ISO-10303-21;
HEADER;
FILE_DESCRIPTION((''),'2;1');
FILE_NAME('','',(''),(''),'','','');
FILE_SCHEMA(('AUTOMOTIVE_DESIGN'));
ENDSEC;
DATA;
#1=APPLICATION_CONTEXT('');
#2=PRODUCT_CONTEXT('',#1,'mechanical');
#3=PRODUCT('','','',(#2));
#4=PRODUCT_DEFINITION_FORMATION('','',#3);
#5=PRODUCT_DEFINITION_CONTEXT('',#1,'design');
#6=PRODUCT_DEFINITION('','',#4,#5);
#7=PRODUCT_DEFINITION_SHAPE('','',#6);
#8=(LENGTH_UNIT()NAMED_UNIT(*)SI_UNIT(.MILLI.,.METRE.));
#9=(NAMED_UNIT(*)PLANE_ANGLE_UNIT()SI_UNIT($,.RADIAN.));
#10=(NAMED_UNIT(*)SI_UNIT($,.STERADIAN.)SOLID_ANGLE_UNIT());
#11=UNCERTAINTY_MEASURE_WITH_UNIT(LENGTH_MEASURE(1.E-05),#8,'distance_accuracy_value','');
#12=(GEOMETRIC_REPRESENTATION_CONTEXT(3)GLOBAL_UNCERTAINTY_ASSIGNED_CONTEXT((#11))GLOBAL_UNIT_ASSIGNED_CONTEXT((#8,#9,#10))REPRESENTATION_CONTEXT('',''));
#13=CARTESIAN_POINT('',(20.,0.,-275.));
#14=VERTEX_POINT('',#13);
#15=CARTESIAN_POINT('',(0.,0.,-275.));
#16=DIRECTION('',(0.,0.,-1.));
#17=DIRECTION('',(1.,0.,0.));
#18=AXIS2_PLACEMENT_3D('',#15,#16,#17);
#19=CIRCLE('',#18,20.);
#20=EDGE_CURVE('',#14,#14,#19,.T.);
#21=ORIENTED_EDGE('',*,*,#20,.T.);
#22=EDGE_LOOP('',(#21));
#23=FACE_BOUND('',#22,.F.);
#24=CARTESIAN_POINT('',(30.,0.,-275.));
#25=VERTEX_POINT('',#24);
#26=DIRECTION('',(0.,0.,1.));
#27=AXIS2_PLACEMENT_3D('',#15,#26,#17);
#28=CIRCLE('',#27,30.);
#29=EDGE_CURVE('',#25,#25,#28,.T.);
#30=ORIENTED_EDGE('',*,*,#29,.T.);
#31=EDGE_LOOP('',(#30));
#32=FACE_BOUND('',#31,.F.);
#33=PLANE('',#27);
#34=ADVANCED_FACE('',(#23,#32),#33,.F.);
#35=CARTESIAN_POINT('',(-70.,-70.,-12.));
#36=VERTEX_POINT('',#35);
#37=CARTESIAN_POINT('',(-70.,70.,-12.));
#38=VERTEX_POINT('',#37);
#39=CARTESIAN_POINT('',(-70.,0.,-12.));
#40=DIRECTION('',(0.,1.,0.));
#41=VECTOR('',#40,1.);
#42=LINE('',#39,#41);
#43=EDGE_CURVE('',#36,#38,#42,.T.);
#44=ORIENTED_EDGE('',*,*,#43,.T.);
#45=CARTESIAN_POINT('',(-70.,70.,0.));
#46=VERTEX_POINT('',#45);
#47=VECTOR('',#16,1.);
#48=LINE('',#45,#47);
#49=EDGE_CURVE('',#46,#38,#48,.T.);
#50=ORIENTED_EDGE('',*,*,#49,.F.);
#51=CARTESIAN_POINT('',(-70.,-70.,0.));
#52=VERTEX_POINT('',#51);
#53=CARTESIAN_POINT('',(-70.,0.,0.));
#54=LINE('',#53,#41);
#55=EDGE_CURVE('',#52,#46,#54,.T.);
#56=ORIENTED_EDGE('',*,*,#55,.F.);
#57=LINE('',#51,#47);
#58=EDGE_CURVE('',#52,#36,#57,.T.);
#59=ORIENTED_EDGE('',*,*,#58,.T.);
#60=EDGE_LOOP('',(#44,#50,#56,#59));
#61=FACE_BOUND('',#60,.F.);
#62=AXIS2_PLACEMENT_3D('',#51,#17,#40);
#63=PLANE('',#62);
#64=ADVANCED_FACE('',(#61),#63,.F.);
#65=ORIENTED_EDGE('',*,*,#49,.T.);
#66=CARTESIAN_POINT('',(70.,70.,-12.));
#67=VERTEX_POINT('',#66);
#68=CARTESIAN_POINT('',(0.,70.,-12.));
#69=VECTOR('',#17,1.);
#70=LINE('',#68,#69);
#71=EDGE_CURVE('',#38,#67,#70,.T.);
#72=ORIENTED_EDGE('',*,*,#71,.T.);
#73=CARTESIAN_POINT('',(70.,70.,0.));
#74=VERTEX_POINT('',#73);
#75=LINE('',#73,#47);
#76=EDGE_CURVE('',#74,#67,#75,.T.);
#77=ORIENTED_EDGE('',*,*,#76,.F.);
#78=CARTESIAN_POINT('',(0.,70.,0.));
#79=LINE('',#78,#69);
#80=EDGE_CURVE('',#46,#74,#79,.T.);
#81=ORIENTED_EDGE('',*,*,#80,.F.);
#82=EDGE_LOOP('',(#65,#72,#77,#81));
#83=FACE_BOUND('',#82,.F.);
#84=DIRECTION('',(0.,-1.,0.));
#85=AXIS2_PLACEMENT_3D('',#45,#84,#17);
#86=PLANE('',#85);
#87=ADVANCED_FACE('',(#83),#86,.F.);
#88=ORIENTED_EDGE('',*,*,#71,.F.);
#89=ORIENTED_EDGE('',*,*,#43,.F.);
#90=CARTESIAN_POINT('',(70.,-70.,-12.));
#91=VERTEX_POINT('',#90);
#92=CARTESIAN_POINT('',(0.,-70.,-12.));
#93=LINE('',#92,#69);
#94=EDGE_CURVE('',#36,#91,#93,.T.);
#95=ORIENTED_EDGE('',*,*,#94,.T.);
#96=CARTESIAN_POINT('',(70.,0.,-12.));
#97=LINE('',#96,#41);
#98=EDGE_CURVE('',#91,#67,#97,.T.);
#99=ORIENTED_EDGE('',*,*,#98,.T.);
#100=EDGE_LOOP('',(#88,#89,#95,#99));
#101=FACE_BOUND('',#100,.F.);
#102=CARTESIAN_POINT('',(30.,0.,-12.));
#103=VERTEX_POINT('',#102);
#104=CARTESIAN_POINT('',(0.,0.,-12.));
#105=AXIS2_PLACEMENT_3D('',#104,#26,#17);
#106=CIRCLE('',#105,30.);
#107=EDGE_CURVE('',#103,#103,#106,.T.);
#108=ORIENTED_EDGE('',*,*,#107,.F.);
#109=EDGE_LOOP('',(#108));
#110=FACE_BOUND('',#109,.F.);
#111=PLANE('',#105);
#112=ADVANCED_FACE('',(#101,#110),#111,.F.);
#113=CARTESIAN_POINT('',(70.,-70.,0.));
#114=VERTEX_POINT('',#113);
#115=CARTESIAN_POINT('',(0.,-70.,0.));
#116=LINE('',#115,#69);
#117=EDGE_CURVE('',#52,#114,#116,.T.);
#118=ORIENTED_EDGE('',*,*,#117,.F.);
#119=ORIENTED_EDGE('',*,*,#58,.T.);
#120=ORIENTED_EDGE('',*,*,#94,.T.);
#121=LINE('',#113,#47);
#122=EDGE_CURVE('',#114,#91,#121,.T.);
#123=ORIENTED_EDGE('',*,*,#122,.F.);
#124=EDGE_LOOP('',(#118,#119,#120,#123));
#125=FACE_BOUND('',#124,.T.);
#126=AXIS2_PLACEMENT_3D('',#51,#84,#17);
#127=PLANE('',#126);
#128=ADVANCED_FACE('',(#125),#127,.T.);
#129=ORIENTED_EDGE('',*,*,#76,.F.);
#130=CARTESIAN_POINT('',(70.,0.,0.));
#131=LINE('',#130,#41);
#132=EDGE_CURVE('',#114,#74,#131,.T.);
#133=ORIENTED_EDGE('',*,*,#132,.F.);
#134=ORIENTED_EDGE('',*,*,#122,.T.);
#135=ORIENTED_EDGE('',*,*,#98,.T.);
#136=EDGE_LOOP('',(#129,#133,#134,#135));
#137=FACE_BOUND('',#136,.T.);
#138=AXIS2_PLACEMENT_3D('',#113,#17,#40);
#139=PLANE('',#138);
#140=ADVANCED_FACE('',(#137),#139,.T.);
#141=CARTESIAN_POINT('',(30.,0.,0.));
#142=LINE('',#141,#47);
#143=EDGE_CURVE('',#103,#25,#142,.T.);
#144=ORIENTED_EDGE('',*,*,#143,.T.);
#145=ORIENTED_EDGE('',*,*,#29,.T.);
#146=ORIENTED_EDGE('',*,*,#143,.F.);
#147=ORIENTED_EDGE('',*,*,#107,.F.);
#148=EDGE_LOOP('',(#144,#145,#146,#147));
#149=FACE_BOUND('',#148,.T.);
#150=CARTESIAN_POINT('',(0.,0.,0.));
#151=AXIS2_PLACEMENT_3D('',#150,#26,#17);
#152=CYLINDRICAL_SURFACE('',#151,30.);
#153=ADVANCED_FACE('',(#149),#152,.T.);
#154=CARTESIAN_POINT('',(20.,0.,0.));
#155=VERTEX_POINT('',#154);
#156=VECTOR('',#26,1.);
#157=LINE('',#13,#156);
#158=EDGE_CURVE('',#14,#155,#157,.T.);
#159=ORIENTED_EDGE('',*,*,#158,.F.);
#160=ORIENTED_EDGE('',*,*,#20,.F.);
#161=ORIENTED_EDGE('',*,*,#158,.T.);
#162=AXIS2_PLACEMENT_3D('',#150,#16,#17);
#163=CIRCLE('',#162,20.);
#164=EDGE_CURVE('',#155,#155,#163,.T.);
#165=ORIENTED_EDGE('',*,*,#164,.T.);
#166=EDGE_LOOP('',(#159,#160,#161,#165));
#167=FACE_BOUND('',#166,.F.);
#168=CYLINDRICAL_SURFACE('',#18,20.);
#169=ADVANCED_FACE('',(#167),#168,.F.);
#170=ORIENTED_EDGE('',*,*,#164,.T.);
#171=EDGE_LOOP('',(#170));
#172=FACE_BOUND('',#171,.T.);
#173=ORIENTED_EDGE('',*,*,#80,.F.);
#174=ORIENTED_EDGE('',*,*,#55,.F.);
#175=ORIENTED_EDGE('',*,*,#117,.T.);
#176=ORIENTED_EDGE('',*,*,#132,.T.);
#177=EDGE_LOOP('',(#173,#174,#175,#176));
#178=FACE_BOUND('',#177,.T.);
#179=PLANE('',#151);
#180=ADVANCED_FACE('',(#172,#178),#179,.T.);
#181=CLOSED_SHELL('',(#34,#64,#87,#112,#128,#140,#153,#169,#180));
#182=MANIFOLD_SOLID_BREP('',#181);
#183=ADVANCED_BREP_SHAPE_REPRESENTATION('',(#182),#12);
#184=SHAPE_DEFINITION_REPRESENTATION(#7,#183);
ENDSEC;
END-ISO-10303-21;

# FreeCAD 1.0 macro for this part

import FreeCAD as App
import Part
import Sketcher
Q = App.Units.Quantity


def add_polygon(sketch, points):
    """Adds a closed chain of lines whose ends are joined by coincident constraints."""
    first, n = sketch.GeometryCount, len(points)
    for a, b in zip(points, points[1:] + points[:1]):
        sketch.addGeometry(Part.LineSegment(App.Vector(*a, 0), App.Vector(*b, 0)), False)
    for i in range(n):
        sketch.addConstraint(Sketcher.Constraint("Coincident", first + i, 2, first + (i + 1) % n, 1))

doc = App.newDocument("Part")
body = doc.addObject("PartDesign::Body", "Body")

# Sketch on XY plane
sketch1 = body.newObject("Sketcher::SketchObject", "Sketch")
sketch1.AttachmentSupport = (doc.getObject("XY_Plane"), [""])
sketch1.MapMode = "FlatFace"
add_polygon(sketch1, [(-70, 70), (-70, -70), (70, -70), (70, 70)])  # lines 0-3
sketch1.addConstraint(Sketcher.Constraint("Vertical", 0))
sketch1.addConstraint(Sketcher.Constraint("Horizontal", 1))
sketch1.addConstraint(Sketcher.Constraint("Vertical", 2))
sketch1.addConstraint(Sketcher.Constraint("Horizontal", 3))
sketch1.addConstraint(Sketcher.Constraint("Symmetric", 0, 2, 2, 2, -1, 1))
sketch1.addConstraint(Sketcher.Constraint("Equal", 3, 0))
sketch1.addConstraint(Sketcher.Constraint("DistanceX", 1, 1, 1, 2, Q("140 mm")))
pad1 = body.newObject("PartDesign::Pad", "Pad")
pad1.Profile = sketch1
pad1.Length = 12
pad1.Reversed = True

# Sketch on XY plane
sketch2 = body.newObject("Sketcher::SketchObject", "Sketch001")
sketch2.AttachmentSupport = (doc.getObject("XY_Plane"), [""])
sketch2.MapMode = "FlatFace"
sketch2.addGeometry(Part.Circle(App.Vector(0, 0, 0), App.Vector(0, 0, 1), 30), False)
sketch2.addConstraint(Sketcher.Constraint("Coincident", 0, 3, -1, 1))
sketch2.addConstraint(Sketcher.Constraint("Diameter", 0, Q("60 mm")))
pad2 = body.newObject("PartDesign::Pad", "Pad001")
pad2.Profile = sketch2
pad2.Length = 275
pad2.Reversed = True

# Sketch on XY plane
sketch3 = body.newObject("Sketcher::SketchObject", "Sketch002")
sketch3.AttachmentSupport = (doc.getObject("XY_Plane"), [""])
sketch3.MapMode = "FlatFace"
sketch3.AttachmentOffset = App.Placement(App.Vector(0, 0, -275), App.Rotation())
sketch3.addGeometry(Part.Circle(App.Vector(0, 0, 0), App.Vector(0, 0, 1), 20), False)
sketch3.addConstraint(Sketcher.Constraint("Coincident", 0, 3, -1, 1))
sketch3.addConstraint(Sketcher.Constraint("Diameter", 0, Q("40 mm")))
pocket1 = body.newObject("PartDesign::Pocket", "Pocket")
pocket1.Profile = sketch3
pocket1.Type = "ThroughAll"
pocket1.Reversed = True

doc.recompute()
